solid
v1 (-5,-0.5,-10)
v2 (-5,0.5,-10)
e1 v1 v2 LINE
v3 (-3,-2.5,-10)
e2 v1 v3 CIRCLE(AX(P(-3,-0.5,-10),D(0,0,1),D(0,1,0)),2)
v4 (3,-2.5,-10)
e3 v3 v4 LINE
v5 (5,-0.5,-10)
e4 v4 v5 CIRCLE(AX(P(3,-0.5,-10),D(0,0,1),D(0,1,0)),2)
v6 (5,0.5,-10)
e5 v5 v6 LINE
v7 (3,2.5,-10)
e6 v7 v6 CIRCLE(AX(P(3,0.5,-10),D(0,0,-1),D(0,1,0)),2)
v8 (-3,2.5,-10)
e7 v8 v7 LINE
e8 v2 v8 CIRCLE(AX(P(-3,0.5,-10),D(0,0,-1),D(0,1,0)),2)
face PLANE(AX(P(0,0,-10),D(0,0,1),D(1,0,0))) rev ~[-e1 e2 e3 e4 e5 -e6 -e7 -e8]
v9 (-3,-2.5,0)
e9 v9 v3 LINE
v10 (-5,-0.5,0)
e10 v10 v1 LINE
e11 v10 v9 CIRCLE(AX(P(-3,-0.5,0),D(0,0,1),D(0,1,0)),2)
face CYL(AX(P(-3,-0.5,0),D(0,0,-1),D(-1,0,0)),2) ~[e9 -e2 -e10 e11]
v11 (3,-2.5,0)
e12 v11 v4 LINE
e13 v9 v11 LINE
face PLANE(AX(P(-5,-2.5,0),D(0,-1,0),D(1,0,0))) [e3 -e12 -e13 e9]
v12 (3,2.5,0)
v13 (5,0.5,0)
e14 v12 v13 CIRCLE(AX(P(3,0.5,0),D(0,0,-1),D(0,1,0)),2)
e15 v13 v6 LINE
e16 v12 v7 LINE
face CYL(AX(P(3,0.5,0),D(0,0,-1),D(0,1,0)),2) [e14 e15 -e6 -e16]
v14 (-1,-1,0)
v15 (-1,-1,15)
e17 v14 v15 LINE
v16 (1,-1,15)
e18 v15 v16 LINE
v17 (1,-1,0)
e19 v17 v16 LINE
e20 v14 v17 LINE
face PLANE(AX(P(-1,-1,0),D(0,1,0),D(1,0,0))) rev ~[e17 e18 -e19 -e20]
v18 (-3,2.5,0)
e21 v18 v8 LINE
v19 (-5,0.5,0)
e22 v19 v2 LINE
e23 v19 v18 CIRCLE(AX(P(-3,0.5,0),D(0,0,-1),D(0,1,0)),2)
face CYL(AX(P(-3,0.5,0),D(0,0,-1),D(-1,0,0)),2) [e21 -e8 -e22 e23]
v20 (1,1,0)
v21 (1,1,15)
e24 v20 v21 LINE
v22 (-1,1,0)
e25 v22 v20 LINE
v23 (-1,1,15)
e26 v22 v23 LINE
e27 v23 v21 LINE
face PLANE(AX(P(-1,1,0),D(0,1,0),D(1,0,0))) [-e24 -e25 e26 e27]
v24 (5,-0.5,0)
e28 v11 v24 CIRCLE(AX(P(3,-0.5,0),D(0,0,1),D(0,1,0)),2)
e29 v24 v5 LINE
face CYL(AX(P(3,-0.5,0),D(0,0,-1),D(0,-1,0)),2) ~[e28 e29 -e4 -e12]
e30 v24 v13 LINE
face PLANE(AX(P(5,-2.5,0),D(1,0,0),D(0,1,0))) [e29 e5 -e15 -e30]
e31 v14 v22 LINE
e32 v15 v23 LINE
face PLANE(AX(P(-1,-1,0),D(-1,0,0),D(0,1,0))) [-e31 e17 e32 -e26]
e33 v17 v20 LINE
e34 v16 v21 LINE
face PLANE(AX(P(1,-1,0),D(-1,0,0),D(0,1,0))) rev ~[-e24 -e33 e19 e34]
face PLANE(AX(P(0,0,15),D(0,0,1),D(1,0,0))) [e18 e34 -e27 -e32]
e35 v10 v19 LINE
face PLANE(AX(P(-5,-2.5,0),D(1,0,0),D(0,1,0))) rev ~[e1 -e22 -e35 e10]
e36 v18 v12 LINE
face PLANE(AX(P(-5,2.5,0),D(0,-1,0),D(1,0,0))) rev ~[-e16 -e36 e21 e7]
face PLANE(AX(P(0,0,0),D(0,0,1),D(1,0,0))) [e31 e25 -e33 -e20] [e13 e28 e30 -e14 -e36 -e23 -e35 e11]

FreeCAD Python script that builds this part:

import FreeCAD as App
import Part
import Sketcher
from FreeCAD import Vector


def edges_at(feature, points):
    """Names of the edges that pass closest to the given points."""
    edges = feature.Shape.Edges
    near = lambda p: min(range(len(edges)), key=lambda i: edges[i].distToShape(Part.Vertex(*p))[0])
    return sorted({f"Edge{near(p) + 1}" for p in points})

doc = App.newDocument("Part")
body = doc.addObject("PartDesign::Body", "Body")

# Sketch on XY plane
sketch1 = body.newObject("Sketcher::SketchObject", "Sketch")
sketch1.AttachmentSupport = (doc.getObject("XY_Plane"), [""])
sketch1.MapMode = "FlatFace"
sketch1.addGeometry([
    Part.LineSegment(Vector(-5, 2, 0), Vector(-5, -2, 0)),
    Part.LineSegment(Vector(-5, -2, 0), Vector(5, -2, 0)),
    Part.LineSegment(Vector(5, -2, 0), Vector(5, 2, 0)),
    Part.LineSegment(Vector(5, 2, 0), Vector(-5, 2, 0)),
], False)
sketch1.addConstraint([
    Sketcher.Constraint("Coincident", 0, 2, 1, 1),
    Sketcher.Constraint("Coincident", 1, 2, 2, 1),
    Sketcher.Constraint("Coincident", 2, 2, 3, 1),
    Sketcher.Constraint("Coincident", 3, 2, 0, 1),
    Sketcher.Constraint("Vertical", 0),
    Sketcher.Constraint("Horizontal", 1),
    Sketcher.Constraint("Vertical", 2),
    Sketcher.Constraint("Horizontal", 3),
    Sketcher.Constraint("Symmetric", 0, 2, 2, 2, -1, 1),
    Sketcher.Constraint("DistanceX", 1, 1, 1, 2, 10.0),
    Sketcher.Constraint("DistanceY", 0, 2, 0, 1, 5.0),
])
pad1 = body.newObject("PartDesign::Pad", "Pad")
pad1.Profile = sketch1
pad1.Length = 10
pad1.Reversed = True

# Sketch on XY plane
sketch2 = body.newObject("Sketcher::SketchObject", "Sketch001")
sketch2.AttachmentSupport = (doc.getObject("XY_Plane"), [""])
sketch2.MapMode = "FlatFace"
sketch2.addGeometry([
    Part.LineSegment(Vector(-1, 1, 0), Vector(-1, -1, 0)),
    Part.LineSegment(Vector(-1, -1, 0), Vector(1, -1, 0)),
    Part.LineSegment(Vector(1, -1, 0), Vector(1, 1, 0)),
    Part.LineSegment(Vector(1, 1, 0), Vector(-1, 1, 0)),
], False)
sketch2.addConstraint([
    Sketcher.Constraint("Coincident", 0, 2, 1, 1),
    Sketcher.Constraint("Coincident", 1, 2, 2, 1),
    Sketcher.Constraint("Coincident", 2, 2, 3, 1),
    Sketcher.Constraint("Coincident", 3, 2, 0, 1),
    Sketcher.Constraint("Vertical", 0),
    Sketcher.Constraint("Horizontal", 1),
    Sketcher.Constraint("Vertical", 2),
    Sketcher.Constraint("Horizontal", 3),
    Sketcher.Constraint("Symmetric", 0, 2, 2, 2, -1, 1),
    Sketcher.Constraint("Equal", 3, 0),
    Sketcher.Constraint("DistanceX", 1, 1, 1, 2, 2.0),
])
pad2 = body.newObject("PartDesign::Pad", "Pad001")
pad2.Profile = sketch2
pad2.Length = 15
doc.recompute()

fillet = body.newObject("PartDesign::Fillet", "Fillet")
fillet.Base = (pad2, edges_at(pad2, [
    (5, -2.5, -5),
    (-5, -2.5, -5),
    (-5, 2.5, -5),
    (5, 2.5, -5),
]))
fillet.Radius = 2

doc.recompute()
